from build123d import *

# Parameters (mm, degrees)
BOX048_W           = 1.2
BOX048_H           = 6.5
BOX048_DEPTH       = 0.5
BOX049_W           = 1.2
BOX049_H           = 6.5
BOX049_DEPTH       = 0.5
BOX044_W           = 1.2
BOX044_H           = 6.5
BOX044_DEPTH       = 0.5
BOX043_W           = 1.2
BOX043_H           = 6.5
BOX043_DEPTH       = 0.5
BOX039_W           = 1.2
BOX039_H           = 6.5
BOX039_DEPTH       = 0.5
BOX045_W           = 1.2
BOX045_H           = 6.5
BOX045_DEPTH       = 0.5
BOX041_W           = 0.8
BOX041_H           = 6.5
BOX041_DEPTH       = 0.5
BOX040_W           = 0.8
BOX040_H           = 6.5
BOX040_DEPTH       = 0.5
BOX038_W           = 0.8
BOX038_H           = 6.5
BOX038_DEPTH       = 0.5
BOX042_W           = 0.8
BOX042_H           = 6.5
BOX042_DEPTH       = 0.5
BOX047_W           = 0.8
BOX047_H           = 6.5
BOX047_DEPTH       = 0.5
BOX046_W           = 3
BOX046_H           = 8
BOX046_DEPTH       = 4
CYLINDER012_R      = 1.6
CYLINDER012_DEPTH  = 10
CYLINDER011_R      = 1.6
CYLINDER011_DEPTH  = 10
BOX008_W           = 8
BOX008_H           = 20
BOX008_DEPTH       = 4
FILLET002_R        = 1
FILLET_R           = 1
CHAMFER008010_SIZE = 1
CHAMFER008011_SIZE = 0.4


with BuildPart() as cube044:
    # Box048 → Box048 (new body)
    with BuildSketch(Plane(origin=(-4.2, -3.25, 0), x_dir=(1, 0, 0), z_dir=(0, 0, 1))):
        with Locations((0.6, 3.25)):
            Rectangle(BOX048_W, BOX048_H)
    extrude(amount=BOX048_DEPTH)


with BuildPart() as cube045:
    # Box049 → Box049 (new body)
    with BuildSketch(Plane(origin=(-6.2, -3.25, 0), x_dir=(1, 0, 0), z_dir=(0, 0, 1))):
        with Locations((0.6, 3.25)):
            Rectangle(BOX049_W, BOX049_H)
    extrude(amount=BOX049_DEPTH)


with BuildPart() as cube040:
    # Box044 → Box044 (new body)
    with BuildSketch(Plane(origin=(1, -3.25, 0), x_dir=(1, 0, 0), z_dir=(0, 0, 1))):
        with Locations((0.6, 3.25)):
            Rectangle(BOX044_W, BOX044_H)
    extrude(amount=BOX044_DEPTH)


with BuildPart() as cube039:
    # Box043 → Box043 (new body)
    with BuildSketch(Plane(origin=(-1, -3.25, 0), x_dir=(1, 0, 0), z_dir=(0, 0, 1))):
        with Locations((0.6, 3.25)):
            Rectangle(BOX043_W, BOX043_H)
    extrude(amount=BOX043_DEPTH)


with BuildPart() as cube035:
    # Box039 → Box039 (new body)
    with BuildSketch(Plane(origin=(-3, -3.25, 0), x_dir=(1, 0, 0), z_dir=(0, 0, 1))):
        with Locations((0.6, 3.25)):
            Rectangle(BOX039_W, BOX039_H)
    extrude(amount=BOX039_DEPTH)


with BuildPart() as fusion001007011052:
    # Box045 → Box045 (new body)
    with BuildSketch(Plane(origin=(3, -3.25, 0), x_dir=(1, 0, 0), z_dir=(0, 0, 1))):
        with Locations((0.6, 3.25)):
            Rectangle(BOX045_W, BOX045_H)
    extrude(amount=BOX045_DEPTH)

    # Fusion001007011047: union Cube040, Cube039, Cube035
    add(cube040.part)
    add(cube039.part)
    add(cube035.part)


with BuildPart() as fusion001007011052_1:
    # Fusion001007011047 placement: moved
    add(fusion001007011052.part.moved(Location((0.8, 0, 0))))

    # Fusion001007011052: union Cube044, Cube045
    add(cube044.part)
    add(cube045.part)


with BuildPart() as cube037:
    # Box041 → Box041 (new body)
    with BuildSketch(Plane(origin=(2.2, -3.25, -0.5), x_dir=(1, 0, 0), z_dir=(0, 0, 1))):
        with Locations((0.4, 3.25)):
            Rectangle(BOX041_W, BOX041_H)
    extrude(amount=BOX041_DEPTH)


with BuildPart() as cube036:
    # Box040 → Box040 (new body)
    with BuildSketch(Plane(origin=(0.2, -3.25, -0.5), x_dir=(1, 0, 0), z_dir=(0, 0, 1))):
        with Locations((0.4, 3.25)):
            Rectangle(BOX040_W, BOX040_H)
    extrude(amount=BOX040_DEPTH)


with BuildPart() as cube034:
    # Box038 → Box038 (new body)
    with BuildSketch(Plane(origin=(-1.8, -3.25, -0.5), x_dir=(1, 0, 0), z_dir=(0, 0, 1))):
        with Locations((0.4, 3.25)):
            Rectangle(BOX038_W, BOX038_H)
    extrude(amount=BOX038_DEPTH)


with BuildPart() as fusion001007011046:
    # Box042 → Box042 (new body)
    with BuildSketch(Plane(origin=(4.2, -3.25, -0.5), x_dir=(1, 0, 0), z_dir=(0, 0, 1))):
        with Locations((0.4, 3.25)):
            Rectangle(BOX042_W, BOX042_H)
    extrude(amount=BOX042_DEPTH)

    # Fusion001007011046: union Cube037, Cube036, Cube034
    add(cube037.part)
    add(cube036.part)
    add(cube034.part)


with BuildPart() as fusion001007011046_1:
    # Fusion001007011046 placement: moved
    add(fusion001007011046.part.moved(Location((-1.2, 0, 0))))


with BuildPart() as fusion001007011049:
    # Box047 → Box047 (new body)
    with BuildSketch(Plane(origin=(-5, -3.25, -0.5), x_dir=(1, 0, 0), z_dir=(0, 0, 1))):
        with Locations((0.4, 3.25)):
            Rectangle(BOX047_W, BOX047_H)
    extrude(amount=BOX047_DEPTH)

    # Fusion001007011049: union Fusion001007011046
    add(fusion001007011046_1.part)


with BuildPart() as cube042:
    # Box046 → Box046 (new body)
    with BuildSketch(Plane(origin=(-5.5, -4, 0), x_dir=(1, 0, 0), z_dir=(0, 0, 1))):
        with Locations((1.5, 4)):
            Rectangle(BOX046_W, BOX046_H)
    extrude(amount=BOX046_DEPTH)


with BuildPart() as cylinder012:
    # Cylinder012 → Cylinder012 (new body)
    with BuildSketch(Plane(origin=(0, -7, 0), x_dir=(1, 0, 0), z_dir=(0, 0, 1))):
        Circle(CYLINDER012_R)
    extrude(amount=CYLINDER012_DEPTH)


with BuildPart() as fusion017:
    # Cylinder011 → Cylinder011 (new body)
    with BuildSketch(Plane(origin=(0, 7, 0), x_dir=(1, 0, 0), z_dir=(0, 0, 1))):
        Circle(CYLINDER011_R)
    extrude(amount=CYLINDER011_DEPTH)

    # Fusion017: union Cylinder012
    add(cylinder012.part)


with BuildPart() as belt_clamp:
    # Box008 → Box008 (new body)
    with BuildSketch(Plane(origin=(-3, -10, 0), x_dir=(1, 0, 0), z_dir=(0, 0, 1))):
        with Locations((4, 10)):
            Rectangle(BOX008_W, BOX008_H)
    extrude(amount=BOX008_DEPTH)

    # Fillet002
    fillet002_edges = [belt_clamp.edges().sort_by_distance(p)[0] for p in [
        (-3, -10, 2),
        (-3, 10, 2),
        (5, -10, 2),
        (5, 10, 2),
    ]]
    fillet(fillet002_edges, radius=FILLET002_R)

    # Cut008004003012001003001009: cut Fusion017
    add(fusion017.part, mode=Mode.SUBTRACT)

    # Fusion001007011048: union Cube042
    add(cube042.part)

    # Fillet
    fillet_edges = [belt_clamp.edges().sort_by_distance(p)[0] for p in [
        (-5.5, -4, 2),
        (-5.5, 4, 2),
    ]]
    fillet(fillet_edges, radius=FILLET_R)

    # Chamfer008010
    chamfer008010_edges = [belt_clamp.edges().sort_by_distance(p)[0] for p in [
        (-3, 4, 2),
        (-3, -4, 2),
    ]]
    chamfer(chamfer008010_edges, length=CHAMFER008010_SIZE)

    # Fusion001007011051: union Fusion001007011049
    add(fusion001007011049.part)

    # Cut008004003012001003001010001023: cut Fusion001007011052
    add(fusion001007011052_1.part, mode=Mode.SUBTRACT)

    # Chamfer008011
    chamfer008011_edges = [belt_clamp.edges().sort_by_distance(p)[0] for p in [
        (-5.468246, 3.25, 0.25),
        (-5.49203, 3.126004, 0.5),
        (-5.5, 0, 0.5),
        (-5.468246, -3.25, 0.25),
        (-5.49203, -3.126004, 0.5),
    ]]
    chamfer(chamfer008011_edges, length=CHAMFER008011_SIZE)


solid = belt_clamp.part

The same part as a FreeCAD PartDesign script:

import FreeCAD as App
import Part
import Sketcher
Q = App.Units.Quantity


def edges_at(feature, points):
    """Names of the edges that pass closest to the given points."""
    edges = feature.Shape.Edges
    near = lambda p: min(range(len(edges)), key=lambda i: edges[i].distToShape(Part.Vertex(*p))[0])
    return sorted({f"Edge{near(p) + 1}" for p in points})

doc = App.newDocument("Part")
body = doc.addObject("PartDesign::Body", "Body")

# Sketch on XY plane
sketch1 = body.newObject("Sketcher::SketchObject", "Sketch")
sketch1.AttachmentSupport = (doc.getObject("XY_Plane"), [""])
sketch1.MapMode = "FlatFace"
sketch1.addGeometry([
    Part.LineSegment(App.Vector(-4.2, 3.2, 0), App.Vector(-4.2, -3.2, 0)),
    Part.LineSegment(App.Vector(-4.2, -3.2, 0), App.Vector(-3, -3.2, 0)),
    Part.LineSegment(App.Vector(-3, -3.2, 0), App.Vector(-3, 3.2, 0)),
    Part.LineSegment(App.Vector(-3, 3.2, 0), App.Vector(-4.2, 3.2, 0)),
], False)
sketch1.addConstraint([
    Sketcher.Constraint("Coincident", 0, 2, 1, 1),
    Sketcher.Constraint("Coincident", 1, 2, 2, 1),
    Sketcher.Constraint("Coincident", 2, 2, 3, 1),
    Sketcher.Constraint("Coincident", 3, 2, 0, 1),
    Sketcher.Constraint("Vertical", 0),
    Sketcher.Constraint("Horizontal", 1),
    Sketcher.Constraint("Vertical", 2),
    Sketcher.Constraint("Horizontal", 3),
    Sketcher.Constraint("DistanceX", 1, 1, 1, 2, Q("1.2 mm")),
    Sketcher.Constraint("DistanceY", 0, 2, 0, 1, Q("6.5 mm")),
    Sketcher.Constraint("DistanceX", 1, 2, -1, 1, Q("3 mm")),
    Sketcher.Constraint("DistanceY", 0, 2, -1, 1, Q("3.25 mm")),
])
pad1 = body.newObject("PartDesign::Pad", "Pad")
pad1.Profile = sketch1
pad1.Length = 0.5
body2 = doc.addObject("PartDesign::Body", "Body001")

# Sketch on XY plane
sketch2 = body2.newObject("Sketcher::SketchObject", "Sketch001")
sketch2.AttachmentSupport = (doc.getObject("XY_Plane001"), [""])
sketch2.MapMode = "FlatFace"
sketch2.addGeometry([
    Part.LineSegment(App.Vector(-6.2, 3.2, 0), App.Vector(-6.2, -3.2, 0)),
    Part.LineSegment(App.Vector(-6.2, -3.2, 0), App.Vector(-5, -3.2, 0)),
    Part.LineSegment(App.Vector(-5, -3.2, 0), App.Vector(-5, 3.2, 0)),
    Part.LineSegment(App.Vector(-5, 3.2, 0), App.Vector(-6.2, 3.2, 0)),
], False)
sketch2.addConstraint([
    Sketcher.Constraint("Coincident", 0, 2, 1, 1),
    Sketcher.Constraint("Coincident", 1, 2, 2, 1),
    Sketcher.Constraint("Coincident", 2, 2, 3, 1),
    Sketcher.Constraint("Coincident", 3, 2, 0, 1),
    Sketcher.Constraint("Vertical", 0),
    Sketcher.Constraint("Horizontal", 1),
    Sketcher.Constraint("Vertical", 2),
    Sketcher.Constraint("Horizontal", 3),
    Sketcher.Constraint("DistanceX", 1, 1, 1, 2, Q("1.2 mm")),
    Sketcher.Constraint("DistanceY", 0, 2, 0, 1, Q("6.5 mm")),
    Sketcher.Constraint("DistanceX", 1, 2, -1, 1, Q("5 mm")),
    Sketcher.Constraint("DistanceY", 0, 2, -1, 1, Q("3.25 mm")),
])
pad2 = body2.newObject("PartDesign::Pad", "Pad001")
pad2.Profile = sketch2
pad2.Length = 0.5
body3 = doc.addObject("PartDesign::Body", "Body002")

# Sketch on XY plane
sketch3 = body3.newObject("Sketcher::SketchObject", "Sketch002")
sketch3.AttachmentSupport = (doc.getObject("XY_Plane002"), [""])
sketch3.MapMode = "FlatFace"
sketch3.addGeometry([
    Part.LineSegment(App.Vector(1, 3.2, 0), App.Vector(1, -3.2, 0)),
    Part.LineSegment(App.Vector(1, -3.2, 0), App.Vector(2.2, -3.2, 0)),
    Part.LineSegment(App.Vector(2.2, -3.2, 0), App.Vector(2.2, 3.2, 0)),
    Part.LineSegment(App.Vector(2.2, 3.2, 0), App.Vector(1, 3.2, 0)),
], False)
sketch3.addConstraint([
    Sketcher.Constraint("Coincident", 0, 2, 1, 1),
    Sketcher.Constraint("Coincident", 1, 2, 2, 1),
    Sketcher.Constraint("Coincident", 2, 2, 3, 1),
    Sketcher.Constraint("Coincident", 3, 2, 0, 1),
    Sketcher.Constraint("Vertical", 0),
    Sketcher.Constraint("Horizontal", 1),
    Sketcher.Constraint("Vertical", 2),
    Sketcher.Constraint("Horizontal", 3),
    Sketcher.Constraint("DistanceX", 1, 1, 1, 2, Q("1.2 mm")),
    Sketcher.Constraint("DistanceY", 0, 2, 0, 1, Q("6.5 mm")),
    Sketcher.Constraint("DistanceX", -1, 1, 0, 2, Q("1 mm")),
    Sketcher.Constraint("DistanceY", 0, 2, -1, 1, Q("3.25 mm")),
])
pad3 = body3.newObject("PartDesign::Pad", "Pad002")
pad3.Profile = sketch3
pad3.Length = 0.5
body4 = doc.addObject("PartDesign::Body", "Body003")

# Sketch on XY plane
sketch4 = body4.newObject("Sketcher::SketchObject", "Sketch003")
sketch4.AttachmentSupport = (doc.getObject("XY_Plane003"), [""])
sketch4.MapMode = "FlatFace"
sketch4.addGeometry([
    Part.LineSegment(App.Vector(-1, 3.2, 0), App.Vector(-1, -3.2, 0)),
    Part.LineSegment(App.Vector(-1, -3.2, 0), App.Vector(0.2, -3.2, 0)),
    Part.LineSegment(App.Vector(0.2, -3.2, 0), App.Vector(0.2, 3.2, 0)),
    Part.LineSegment(App.Vector(0.2, 3.2, 0), App.Vector(-1, 3.2, 0)),
], False)
sketch4.addConstraint([
    Sketcher.Constraint("Coincident", 0, 2, 1, 1),
    Sketcher.Constraint("Coincident", 1, 2, 2, 1),
    Sketcher.Constraint("Coincident", 2, 2, 3, 1),
    Sketcher.Constraint("Coincident", 3, 2, 0, 1),
    Sketcher.Constraint("Vertical", 0),
    Sketcher.Constraint("Horizontal", 1),
    Sketcher.Constraint("Vertical", 2),
    Sketcher.Constraint("Horizontal", 3),
    Sketcher.Constraint("DistanceX", 1, 1, 1, 2, Q("1.2 mm")),
    Sketcher.Constraint("DistanceY", 0, 2, 0, 1, Q("6.5 mm")),
    Sketcher.Constraint("DistanceX", 0, 2, -1, 1, Q("1 mm")),
    Sketcher.Constraint("DistanceY", 0, 2, -1, 1, Q("3.25 mm")),
])
pad4 = body4.newObject("PartDesign::Pad", "Pad003")
pad4.Profile = sketch4
pad4.Length = 0.5
body5 = doc.addObject("PartDesign::Body", "Body004")

# Sketch on XY plane
sketch5 = body5.newObject("Sketcher::SketchObject", "Sketch004")
sketch5.AttachmentSupport = (doc.getObject("XY_Plane004"), [""])
sketch5.MapMode = "FlatFace"
sketch5.addGeometry([
    Part.LineSegment(App.Vector(-3, 3.2, 0), App.Vector(-3, -3.2, 0)),
    Part.LineSegment(App.Vector(-3, -3.2, 0), App.Vector(-1.8, -3.2, 0)),
    Part.LineSegment(App.Vector(-1.8, -3.2, 0), App.Vector(-1.8, 3.2, 0)),
    Part.LineSegment(App.Vector(-1.8, 3.2, 0), App.Vector(-3, 3.2, 0)),
], False)
sketch5.addConstraint([
    Sketcher.Constraint("Coincident", 0, 2, 1, 1),
    Sketcher.Constraint("Coincident", 1, 2, 2, 1),
    Sketcher.Constraint("Coincident", 2, 2, 3, 1),
    Sketcher.Constraint("Coincident", 3, 2, 0, 1),
    Sketcher.Constraint("Vertical", 0),
    Sketcher.Constraint("Horizontal", 1),
    Sketcher.Constraint("Vertical", 2),
    Sketcher.Constraint("Horizontal", 3),
    Sketcher.Constraint("DistanceX", 1, 1, 1, 2, Q("1.2 mm")),
    Sketcher.Constraint("DistanceY", 0, 2, 0, 1, Q("6.5 mm")),
    Sketcher.Constraint("DistanceX", 0, 2, -1, 1, Q("3 mm")),
    Sketcher.Constraint("DistanceY", 0, 2, -1, 1, Q("3.25 mm")),
])
pad5 = body5.newObject("PartDesign::Pad", "Pad004")
pad5.Profile = sketch5
pad5.Length = 0.5
body6 = doc.addObject("PartDesign::Body", "Body005")
body6.AllowCompound = True

# Sketch on XY plane
sketch6 = body6.newObject("Sketcher::SketchObject", "Sketch005")
sketch6.AttachmentSupport = (doc.getObject("XY_Plane005"), [""])
sketch6.MapMode = "FlatFace"
sketch6.addGeometry([
    Part.LineSegment(App.Vector(3, 3.2, 0), App.Vector(3, -3.2, 0)),
    Part.LineSegment(App.Vector(3, -3.2, 0), App.Vector(4.2, -3.2, 0)),
    Part.LineSegment(App.Vector(4.2, -3.2, 0), App.Vector(4.2, 3.2, 0)),
    Part.LineSegment(App.Vector(4.2, 3.2, 0), App.Vector(3, 3.2, 0)),
], False)
sketch6.addConstraint([
    Sketcher.Constraint("Coincident", 0, 2, 1, 1),
    Sketcher.Constraint("Coincident", 1, 2, 2, 1),
    Sketcher.Constraint("Coincident", 2, 2, 3, 1),
    Sketcher.Constraint("Coincident", 3, 2, 0, 1),
    Sketcher.Constraint("Vertical", 0),
    Sketcher.Constraint("Horizontal", 1),
    Sketcher.Constraint("Vertical", 2),
    Sketcher.Constraint("Horizontal", 3),
    Sketcher.Constraint("DistanceX", 1, 1, 1, 2, Q("1.2 mm")),
    Sketcher.Constraint("DistanceY", 0, 2, 0, 1, Q("6.5 mm")),
    Sketcher.Constraint("DistanceX", -1, 1, 0, 2, Q("3 mm")),
    Sketcher.Constraint("DistanceY", 0, 2, -1, 1, Q("3.25 mm")),
])
pad6 = body6.newObject("PartDesign::Pad", "Pad005")
pad6.Profile = sketch6
pad6.Length = 0.5
doc.recompute()

boolean = body6.newObject("PartDesign::Boolean", "Boolean")
boolean.Type = "Fuse"
boolean.addObjects([body3])
doc.recompute()

boolean2 = body6.newObject("PartDesign::Boolean", "Boolean001")
boolean2.Type = "Fuse"
boolean2.addObjects([body4])
doc.recompute()

boolean3 = body6.newObject("PartDesign::Boolean", "Boolean002")
boolean3.Type = "Fuse"
boolean3.addObjects([body5])
body7 = doc.addObject("PartDesign::Body", "Body006")
body7.AllowCompound = True
doc.recompute()

body6.Placement = App.Placement(App.Vector(0.8, 0, 0), App.Rotation(App.Vector(0, 0, 1), 0))
boolean4 = body7.newObject("PartDesign::Boolean", "Boolean003")
boolean4.Type = "Fuse"
boolean4.addObjects([body6])
doc.recompute()

boolean5 = body7.newObject("PartDesign::Boolean", "Boolean004")
boolean5.Type = "Fuse"
boolean5.addObjects([body])
doc.recompute()

boolean6 = body7.newObject("PartDesign::Boolean", "Boolean005")
boolean6.Type = "Fuse"
boolean6.addObjects([body2])
body8 = doc.addObject("PartDesign::Body", "Body007")

# Sketch on XY plane
sketch7 = body8.newObject("Sketcher::SketchObject", "Sketch006")
sketch7.AttachmentSupport = (doc.getObject("XY_Plane007"), [""])
sketch7.MapMode = "FlatFace"
sketch7.AttachmentOffset = App.Placement(App.Vector(0, 0, -0.5), App.Rotation())
sketch7.addGeometry([
    Part.LineSegment(App.Vector(2.2, 3.2, 0), App.Vector(2.2, -3.2, 0)),
    Part.LineSegment(App.Vector(2.2, -3.2, 0), App.Vector(3, -3.2, 0)),
    Part.LineSegment(App.Vector(3, -3.2, 0), App.Vector(3, 3.2, 0)),
    Part.LineSegment(App.Vector(3, 3.2, 0), App.Vector(2.2, 3.2, 0)),
], False)
sketch7.addConstraint([
    Sketcher.Constraint("Coincident", 0, 2, 1, 1),
    Sketcher.Constraint("Coincident", 1, 2, 2, 1),
    Sketcher.Constraint("Coincident", 2, 2, 3, 1),
    Sketcher.Constraint("Coincident", 3, 2, 0, 1),
    Sketcher.Constraint("Vertical", 0),
    Sketcher.Constraint("Horizontal", 1),
    Sketcher.Constraint("Vertical", 2),
    Sketcher.Constraint("Horizontal", 3),
    Sketcher.Constraint("DistanceX", 1, 1, 1, 2, Q("0.8 mm")),
    Sketcher.Constraint("DistanceY", 0, 2, 0, 1, Q("6.5 mm")),
    Sketcher.Constraint("DistanceX", -1, 1, 1, 2, Q("3 mm")),
    Sketcher.Constraint("DistanceY", 0, 2, -1, 1, Q("3.25 mm")),
])
pad7 = body8.newObject("PartDesign::Pad", "Pad006")
pad7.Profile = sketch7
pad7.Length = 0.5
body9 = doc.addObject("PartDesign::Body", "Body008")

# Sketch on XY plane
sketch8 = body9.newObject("Sketcher::SketchObject", "Sketch007")
sketch8.AttachmentSupport = (doc.getObject("XY_Plane008"), [""])
sketch8.MapMode = "FlatFace"
sketch8.AttachmentOffset = App.Placement(App.Vector(0, 0, -0.5), App.Rotation())
sketch8.addGeometry([
    Part.LineSegment(App.Vector(0.2, 3.2, 0), App.Vector(0.2, -3.2, 0)),
    Part.LineSegment(App.Vector(0.2, -3.2, 0), App.Vector(1, -3.2, 0)),
    Part.LineSegment(App.Vector(1, -3.2, 0), App.Vector(1, 3.2, 0)),
    Part.LineSegment(App.Vector(1, 3.2, 0), App.Vector(0.2, 3.2, 0)),
], False)
sketch8.addConstraint([
    Sketcher.Constraint("Coincident", 0, 2, 1, 1),
    Sketcher.Constraint("Coincident", 1, 2, 2, 1),
    Sketcher.Constraint("Coincident", 2, 2, 3, 1),
    Sketcher.Constraint("Coincident", 3, 2, 0, 1),
    Sketcher.Constraint("Vertical", 0),
    Sketcher.Constraint("Horizontal", 1),
    Sketcher.Constraint("Vertical", 2),
    Sketcher.Constraint("Horizontal", 3),
    Sketcher.Constraint("DistanceX", 1, 1, 1, 2, Q("0.8 mm")),
    Sketcher.Constraint("DistanceY", 0, 2, 0, 1, Q("6.5 mm")),
    Sketcher.Constraint("DistanceX", -1, 1, 1, 2, Q("1 mm")),
    Sketcher.Constraint("DistanceY", 0, 2, -1, 1, Q("3.25 mm")),
])
pad8 = body9.newObject("PartDesign::Pad", "Pad007")
pad8.Profile = sketch8
pad8.Length = 0.5
body10 = doc.addObject("PartDesign::Body", "Body009")

# Sketch on XY plane
sketch9 = body10.newObject("Sketcher::SketchObject", "Sketch008")
sketch9.AttachmentSupport = (doc.getObject("XY_Plane009"), [""])
sketch9.MapMode = "FlatFace"
sketch9.AttachmentOffset = App.Placement(App.Vector(0, 0, -0.5), App.Rotation())
sketch9.addGeometry([
    Part.LineSegment(App.Vector(-1.8, 3.2, 0), App.Vector(-1.8, -3.2, 0)),
    Part.LineSegment(App.Vector(-1.8, -3.2, 0), App.Vector(-1, -3.2, 0)),
    Part.LineSegment(App.Vector(-1, -3.2, 0), App.Vector(-1, 3.2, 0)),
    Part.LineSegment(App.Vector(-1, 3.2, 0), App.Vector(-1.8, 3.2, 0)),
], False)
sketch9.addConstraint([
    Sketcher.Constraint("Coincident", 0, 2, 1, 1),
    Sketcher.Constraint("Coincident", 1, 2, 2, 1),
    Sketcher.Constraint("Coincident", 2, 2, 3, 1),
    Sketcher.Constraint("Coincident", 3, 2, 0, 1),
    Sketcher.Constraint("Vertical", 0),
    Sketcher.Constraint("Horizontal", 1),
    Sketcher.Constraint("Vertical", 2),
    Sketcher.Constraint("Horizontal", 3),
    Sketcher.Constraint("DistanceX", 1, 1, 1, 2, Q("0.8 mm")),
    Sketcher.Constraint("DistanceY", 0, 2, 0, 1, Q("6.5 mm")),
    Sketcher.Constraint("DistanceX", 1, 2, -1, 1, Q("1 mm")),
    Sketcher.Constraint("DistanceY", 0, 2, -1, 1, Q("3.25 mm")),
])
pad9 = body10.newObject("PartDesign::Pad", "Pad008")
pad9.Profile = sketch9
pad9.Length = 0.5
body11 = doc.addObject("PartDesign::Body", "Body010")
body11.AllowCompound = True

# Sketch on XY plane
sketch10 = body11.newObject("Sketcher::SketchObject", "Sketch009")
sketch10.AttachmentSupport = (doc.getObject("XY_Plane010"), [""])
sketch10.MapMode = "FlatFace"
sketch10.AttachmentOffset = App.Placement(App.Vector(0, 0, -0.5), App.Rotation())
sketch10.addGeometry([
    Part.LineSegment(App.Vector(4.2, 3.2, 0), App.Vector(4.2, -3.2, 0)),
    Part.LineSegment(App.Vector(4.2, -3.2, 0), App.Vector(5, -3.2, 0)),
    Part.LineSegment(App.Vector(5, -3.2, 0), App.Vector(5, 3.2, 0)),
    Part.LineSegment(App.Vector(5, 3.2, 0), App.Vector(4.2, 3.2, 0)),
], False)
sketch10.addConstraint([
    Sketcher.Constraint("Coincident", 0, 2, 1, 1),
    Sketcher.Constraint("Coincident", 1, 2, 2, 1),
    Sketcher.Constraint("Coincident", 2, 2, 3, 1),
    Sketcher.Constraint("Coincident", 3, 2, 0, 1),
    Sketcher.Constraint("Vertical", 0),
    Sketcher.Constraint("Horizontal", 1),
    Sketcher.Constraint("Vertical", 2),
    Sketcher.Constraint("Horizontal", 3),
    Sketcher.Constraint("DistanceX", 1, 1, 1, 2, Q("0.8 mm")),
    Sketcher.Constraint("DistanceY", 0, 2, 0, 1, Q("6.5 mm")),
    Sketcher.Constraint("DistanceX", -1, 1, 1, 2, Q("5 mm")),
    Sketcher.Constraint("DistanceY", 0, 2, -1, 1, Q("3.25 mm")),
])
pad10 = body11.newObject("PartDesign::Pad", "Pad009")
pad10.Profile = sketch10
pad10.Length = 0.5
doc.recompute()

boolean7 = body11.newObject("PartDesign::Boolean", "Boolean006")
boolean7.Type = "Fuse"
boolean7.addObjects([body8])
doc.recompute()

boolean8 = body11.newObject("PartDesign::Boolean", "Boolean007")
boolean8.Type = "Fuse"
boolean8.addObjects([body9])
doc.recompute()

boolean9 = body11.newObject("PartDesign::Boolean", "Boolean008")
boolean9.Type = "Fuse"
boolean9.addObjects([body10])
body12 = doc.addObject("PartDesign::Body", "Body011")
body12.AllowCompound = True
doc.recompute()

body11.Placement = App.Placement(App.Vector(-1.2, 0, 0), App.Rotation(App.Vector(0, 0, 1), 0))
boolean10 = body12.newObject("PartDesign::Boolean", "Boolean009")
boolean10.Type = "Fuse"
boolean10.addObjects([body11])
body13 = doc.addObject("PartDesign::Body", "Body012")
body13.AllowCompound = True

# Sketch on XY plane
sketch11 = body13.newObject("Sketcher::SketchObject", "Sketch010")
sketch11.AttachmentSupport = (doc.getObject("XY_Plane012"), [""])
sketch11.MapMode = "FlatFace"
sketch11.AttachmentOffset = App.Placement(App.Vector(0, 0, -0.5), App.Rotation())
sketch11.addGeometry([
    Part.LineSegment(App.Vector(-5, 3.2, 0), App.Vector(-5, -3.2, 0)),
    Part.LineSegment(App.Vector(-5, -3.2, 0), App.Vector(-4.2, -3.2, 0)),
    Part.LineSegment(App.Vector(-4.2, -3.2, 0), App.Vector(-4.2, 3.2, 0)),
    Part.LineSegment(App.Vector(-4.2, 3.2, 0), App.Vector(-5, 3.2, 0)),
], False)
sketch11.addConstraint([
    Sketcher.Constraint("Coincident", 0, 2, 1, 1),
    Sketcher.Constraint("Coincident", 1, 2, 2, 1),
    Sketcher.Constraint("Coincident", 2, 2, 3, 1),
    Sketcher.Constraint("Coincident", 3, 2, 0, 1),
    Sketcher.Constraint("Vertical", 0),
    Sketcher.Constraint("Horizontal", 1),
    Sketcher.Constraint("Vertical", 2),
    Sketcher.Constraint("Horizontal", 3),
    Sketcher.Constraint("DistanceX", 1, 1, 1, 2, Q("0.8 mm")),
    Sketcher.Constraint("DistanceY", 0, 2, 0, 1, Q("6.5 mm")),
    Sketcher.Constraint("DistanceX", 0, 2, -1, 1, Q("5 mm")),
    Sketcher.Constraint("DistanceY", 0, 2, -1, 1, Q("3.25 mm")),
])
pad11 = body13.newObject("PartDesign::Pad", "Pad010")
pad11.Profile = sketch11
pad11.Length = 0.5
doc.recompute()

boolean11 = body13.newObject("PartDesign::Boolean", "Boolean010")
boolean11.Type = "Fuse"
boolean11.addObjects([body12])
body14 = doc.addObject("PartDesign::Body", "Body013")

# Sketch on XY plane
sketch12 = body14.newObject("Sketcher::SketchObject", "Sketch011")
sketch12.AttachmentSupport = (doc.getObject("XY_Plane013"), [""])
sketch12.MapMode = "FlatFace"
sketch12.addGeometry([
    Part.LineSegment(App.Vector(-5.5, 4, 0), App.Vector(-5.5, -4, 0)),
    Part.LineSegment(App.Vector(-5.5, -4, 0), App.Vector(-2.5, -4, 0)),
    Part.LineSegment(App.Vector(-2.5, -4, 0), App.Vector(-2.5, 4, 0)),
    Part.LineSegment(App.Vector(-2.5, 4, 0), App.Vector(-5.5, 4, 0)),
], False)
sketch12.addConstraint([
    Sketcher.Constraint("Coincident", 0, 2, 1, 1),
    Sketcher.Constraint("Coincident", 1, 2, 2, 1),
    Sketcher.Constraint("Coincident", 2, 2, 3, 1),
    Sketcher.Constraint("Coincident", 3, 2, 0, 1),
    Sketcher.Constraint("Vertical", 0),
    Sketcher.Constraint("Horizontal", 1),
    Sketcher.Constraint("Vertical", 2),
    Sketcher.Constraint("Horizontal", 3),
    Sketcher.Constraint("DistanceX", 1, 1, 1, 2, Q("3 mm")),
    Sketcher.Constraint("DistanceY", 0, 2, 0, 1, Q("8 mm")),
    Sketcher.Constraint("DistanceY", 0, 2, -1, 1, Q("4 mm")),
    Sketcher.Constraint("DistanceX", 0, 2, -1, 1, Q("5.5 mm")),
])
pad12 = body14.newObject("PartDesign::Pad", "Pad011")
pad12.Profile = sketch12
pad12.Length = 4
body15 = doc.addObject("PartDesign::Body", "Body014")

# Sketch on XY plane
sketch13 = body15.newObject("Sketcher::SketchObject", "Sketch012")
sketch13.AttachmentSupport = (doc.getObject("XY_Plane014"), [""])
sketch13.MapMode = "FlatFace"
sketch13.addGeometry(Part.Circle(App.Vector(0, -7, 0), App.Vector(0, 0, 1), 1.6), False)
sketch13.addConstraint([
    Sketcher.Constraint("PointOnObject", 0, 3, -2),
    Sketcher.Constraint("Diameter", 0, Q("3.2 mm")),
    Sketcher.Constraint("DistanceY", 0, 3, -1, 1, Q("7 mm")),
])
pad13 = body15.newObject("PartDesign::Pad", "Pad012")
pad13.Profile = sketch13
pad13.Length = 10
body16 = doc.addObject("PartDesign::Body", "Body015")
body16.AllowCompound = True

# Sketch on XY plane
sketch14 = body16.newObject("Sketcher::SketchObject", "Sketch013")
sketch14.AttachmentSupport = (doc.getObject("XY_Plane015"), [""])
sketch14.MapMode = "FlatFace"
sketch14.addGeometry(Part.Circle(App.Vector(0, 7, 0), App.Vector(0, 0, 1), 1.6), False)
sketch14.addConstraint([
    Sketcher.Constraint("PointOnObject", 0, 3, -2),
    Sketcher.Constraint("Diameter", 0, Q("3.2 mm")),
    Sketcher.Constraint("DistanceY", -1, 1, 0, 3, Q("7 mm")),
])
pad14 = body16.newObject("PartDesign::Pad", "Pad013")
pad14.Profile = sketch14
pad14.Length = 10
doc.recompute()

boolean12 = body16.newObject("PartDesign::Boolean", "Boolean011")
boolean12.Type = "Fuse"
boolean12.addObjects([body15])
body17 = doc.addObject("PartDesign::Body", "Body016")

# Sketch on XY plane
sketch15 = body17.newObject("Sketcher::SketchObject", "Sketch014")
sketch15.AttachmentSupport = (doc.getObject("XY_Plane016"), [""])
sketch15.MapMode = "FlatFace"
sketch15.addGeometry([
    Part.LineSegment(App.Vector(-3, 10, 0), App.Vector(-3, -10, 0)),
    Part.LineSegment(App.Vector(-3, -10, 0), App.Vector(5, -10, 0)),
    Part.LineSegment(App.Vector(5, -10, 0), App.Vector(5, 10, 0)),
    Part.LineSegment(App.Vector(5, 10, 0), App.Vector(-3, 10, 0)),
], False)
sketch15.addConstraint([
    Sketcher.Constraint("Coincident", 0, 2, 1, 1),
    Sketcher.Constraint("Coincident", 1, 2, 2, 1),
    Sketcher.Constraint("Coincident", 2, 2, 3, 1),
    Sketcher.Constraint("Coincident", 3, 2, 0, 1),
    Sketcher.Constraint("Vertical", 0),
    Sketcher.Constraint("Horizontal", 1),
    Sketcher.Constraint("Vertical", 2),
    Sketcher.Constraint("Horizontal", 3),
    Sketcher.Constraint("DistanceX", 1, 1, 1, 2, Q("8 mm")),
    Sketcher.Constraint("DistanceY", 0, 2, 0, 1, Q("20 mm")),
    Sketcher.Constraint("DistanceX", 0, 2, -1, 1, Q("3 mm")),
    Sketcher.Constraint("DistanceY", 0, 2, -1, 1, Q("10 mm")),
])
pad15 = body17.newObject("PartDesign::Pad", "Pad014")
pad15.Profile = sketch15
pad15.Length = 4
doc.recompute()

fillet = body17.newObject("PartDesign::Fillet", "Fillet")
fillet.Base = (pad15, edges_at(pad15, [
    (-3, -10, 2),
    (-3, 10, 2),
    (5, -10, 2),
    (5, 10, 2),
]))
fillet.Radius = 1
doc.recompute()

boolean13 = body17.newObject("PartDesign::Boolean", "Boolean012")
boolean13.Type = "Cut"
boolean13.addObjects([body16])
doc.recompute()

boolean14 = body17.newObject("PartDesign::Boolean", "Boolean013")
boolean14.Type = "Fuse"
boolean14.addObjects([body14])
doc.recompute()

fillet2 = body17.newObject("PartDesign::Fillet", "Fillet001")
fillet2.Base = (boolean14, edges_at(boolean14, [(-5.5, -4, 2), (-5.5, 4, 2)]))
fillet2.Radius = 1
doc.recompute()

chamfer = body17.newObject("PartDesign::Chamfer", "Chamfer")
chamfer.Base = (fillet2, edges_at(fillet2, [(-3, 4, 2), (-3, -4, 2)]))
chamfer.Size = 1
doc.recompute()

boolean15 = body17.newObject("PartDesign::Boolean", "Boolean014")
boolean15.Type = "Fuse"
boolean15.addObjects([body13])
doc.recompute()

boolean16 = body17.newObject("PartDesign::Boolean", "Boolean015")
boolean16.Type = "Cut"
boolean16.addObjects([body7])
doc.recompute()

chamfer2 = body17.newObject("PartDesign::Chamfer", "Chamfer001")
chamfer2.Base = (boolean16, edges_at(boolean16, [
    (-5.468, 3.25, 0.25),
    (-5.492, 3.126, 0.5),
    (-5.5, 0, 0.5),
    (-5.468, -3.25, 0.25),
    (-5.492, -3.126, 0.5),
]))
chamfer2.Size = 0.4

doc.recompute()
